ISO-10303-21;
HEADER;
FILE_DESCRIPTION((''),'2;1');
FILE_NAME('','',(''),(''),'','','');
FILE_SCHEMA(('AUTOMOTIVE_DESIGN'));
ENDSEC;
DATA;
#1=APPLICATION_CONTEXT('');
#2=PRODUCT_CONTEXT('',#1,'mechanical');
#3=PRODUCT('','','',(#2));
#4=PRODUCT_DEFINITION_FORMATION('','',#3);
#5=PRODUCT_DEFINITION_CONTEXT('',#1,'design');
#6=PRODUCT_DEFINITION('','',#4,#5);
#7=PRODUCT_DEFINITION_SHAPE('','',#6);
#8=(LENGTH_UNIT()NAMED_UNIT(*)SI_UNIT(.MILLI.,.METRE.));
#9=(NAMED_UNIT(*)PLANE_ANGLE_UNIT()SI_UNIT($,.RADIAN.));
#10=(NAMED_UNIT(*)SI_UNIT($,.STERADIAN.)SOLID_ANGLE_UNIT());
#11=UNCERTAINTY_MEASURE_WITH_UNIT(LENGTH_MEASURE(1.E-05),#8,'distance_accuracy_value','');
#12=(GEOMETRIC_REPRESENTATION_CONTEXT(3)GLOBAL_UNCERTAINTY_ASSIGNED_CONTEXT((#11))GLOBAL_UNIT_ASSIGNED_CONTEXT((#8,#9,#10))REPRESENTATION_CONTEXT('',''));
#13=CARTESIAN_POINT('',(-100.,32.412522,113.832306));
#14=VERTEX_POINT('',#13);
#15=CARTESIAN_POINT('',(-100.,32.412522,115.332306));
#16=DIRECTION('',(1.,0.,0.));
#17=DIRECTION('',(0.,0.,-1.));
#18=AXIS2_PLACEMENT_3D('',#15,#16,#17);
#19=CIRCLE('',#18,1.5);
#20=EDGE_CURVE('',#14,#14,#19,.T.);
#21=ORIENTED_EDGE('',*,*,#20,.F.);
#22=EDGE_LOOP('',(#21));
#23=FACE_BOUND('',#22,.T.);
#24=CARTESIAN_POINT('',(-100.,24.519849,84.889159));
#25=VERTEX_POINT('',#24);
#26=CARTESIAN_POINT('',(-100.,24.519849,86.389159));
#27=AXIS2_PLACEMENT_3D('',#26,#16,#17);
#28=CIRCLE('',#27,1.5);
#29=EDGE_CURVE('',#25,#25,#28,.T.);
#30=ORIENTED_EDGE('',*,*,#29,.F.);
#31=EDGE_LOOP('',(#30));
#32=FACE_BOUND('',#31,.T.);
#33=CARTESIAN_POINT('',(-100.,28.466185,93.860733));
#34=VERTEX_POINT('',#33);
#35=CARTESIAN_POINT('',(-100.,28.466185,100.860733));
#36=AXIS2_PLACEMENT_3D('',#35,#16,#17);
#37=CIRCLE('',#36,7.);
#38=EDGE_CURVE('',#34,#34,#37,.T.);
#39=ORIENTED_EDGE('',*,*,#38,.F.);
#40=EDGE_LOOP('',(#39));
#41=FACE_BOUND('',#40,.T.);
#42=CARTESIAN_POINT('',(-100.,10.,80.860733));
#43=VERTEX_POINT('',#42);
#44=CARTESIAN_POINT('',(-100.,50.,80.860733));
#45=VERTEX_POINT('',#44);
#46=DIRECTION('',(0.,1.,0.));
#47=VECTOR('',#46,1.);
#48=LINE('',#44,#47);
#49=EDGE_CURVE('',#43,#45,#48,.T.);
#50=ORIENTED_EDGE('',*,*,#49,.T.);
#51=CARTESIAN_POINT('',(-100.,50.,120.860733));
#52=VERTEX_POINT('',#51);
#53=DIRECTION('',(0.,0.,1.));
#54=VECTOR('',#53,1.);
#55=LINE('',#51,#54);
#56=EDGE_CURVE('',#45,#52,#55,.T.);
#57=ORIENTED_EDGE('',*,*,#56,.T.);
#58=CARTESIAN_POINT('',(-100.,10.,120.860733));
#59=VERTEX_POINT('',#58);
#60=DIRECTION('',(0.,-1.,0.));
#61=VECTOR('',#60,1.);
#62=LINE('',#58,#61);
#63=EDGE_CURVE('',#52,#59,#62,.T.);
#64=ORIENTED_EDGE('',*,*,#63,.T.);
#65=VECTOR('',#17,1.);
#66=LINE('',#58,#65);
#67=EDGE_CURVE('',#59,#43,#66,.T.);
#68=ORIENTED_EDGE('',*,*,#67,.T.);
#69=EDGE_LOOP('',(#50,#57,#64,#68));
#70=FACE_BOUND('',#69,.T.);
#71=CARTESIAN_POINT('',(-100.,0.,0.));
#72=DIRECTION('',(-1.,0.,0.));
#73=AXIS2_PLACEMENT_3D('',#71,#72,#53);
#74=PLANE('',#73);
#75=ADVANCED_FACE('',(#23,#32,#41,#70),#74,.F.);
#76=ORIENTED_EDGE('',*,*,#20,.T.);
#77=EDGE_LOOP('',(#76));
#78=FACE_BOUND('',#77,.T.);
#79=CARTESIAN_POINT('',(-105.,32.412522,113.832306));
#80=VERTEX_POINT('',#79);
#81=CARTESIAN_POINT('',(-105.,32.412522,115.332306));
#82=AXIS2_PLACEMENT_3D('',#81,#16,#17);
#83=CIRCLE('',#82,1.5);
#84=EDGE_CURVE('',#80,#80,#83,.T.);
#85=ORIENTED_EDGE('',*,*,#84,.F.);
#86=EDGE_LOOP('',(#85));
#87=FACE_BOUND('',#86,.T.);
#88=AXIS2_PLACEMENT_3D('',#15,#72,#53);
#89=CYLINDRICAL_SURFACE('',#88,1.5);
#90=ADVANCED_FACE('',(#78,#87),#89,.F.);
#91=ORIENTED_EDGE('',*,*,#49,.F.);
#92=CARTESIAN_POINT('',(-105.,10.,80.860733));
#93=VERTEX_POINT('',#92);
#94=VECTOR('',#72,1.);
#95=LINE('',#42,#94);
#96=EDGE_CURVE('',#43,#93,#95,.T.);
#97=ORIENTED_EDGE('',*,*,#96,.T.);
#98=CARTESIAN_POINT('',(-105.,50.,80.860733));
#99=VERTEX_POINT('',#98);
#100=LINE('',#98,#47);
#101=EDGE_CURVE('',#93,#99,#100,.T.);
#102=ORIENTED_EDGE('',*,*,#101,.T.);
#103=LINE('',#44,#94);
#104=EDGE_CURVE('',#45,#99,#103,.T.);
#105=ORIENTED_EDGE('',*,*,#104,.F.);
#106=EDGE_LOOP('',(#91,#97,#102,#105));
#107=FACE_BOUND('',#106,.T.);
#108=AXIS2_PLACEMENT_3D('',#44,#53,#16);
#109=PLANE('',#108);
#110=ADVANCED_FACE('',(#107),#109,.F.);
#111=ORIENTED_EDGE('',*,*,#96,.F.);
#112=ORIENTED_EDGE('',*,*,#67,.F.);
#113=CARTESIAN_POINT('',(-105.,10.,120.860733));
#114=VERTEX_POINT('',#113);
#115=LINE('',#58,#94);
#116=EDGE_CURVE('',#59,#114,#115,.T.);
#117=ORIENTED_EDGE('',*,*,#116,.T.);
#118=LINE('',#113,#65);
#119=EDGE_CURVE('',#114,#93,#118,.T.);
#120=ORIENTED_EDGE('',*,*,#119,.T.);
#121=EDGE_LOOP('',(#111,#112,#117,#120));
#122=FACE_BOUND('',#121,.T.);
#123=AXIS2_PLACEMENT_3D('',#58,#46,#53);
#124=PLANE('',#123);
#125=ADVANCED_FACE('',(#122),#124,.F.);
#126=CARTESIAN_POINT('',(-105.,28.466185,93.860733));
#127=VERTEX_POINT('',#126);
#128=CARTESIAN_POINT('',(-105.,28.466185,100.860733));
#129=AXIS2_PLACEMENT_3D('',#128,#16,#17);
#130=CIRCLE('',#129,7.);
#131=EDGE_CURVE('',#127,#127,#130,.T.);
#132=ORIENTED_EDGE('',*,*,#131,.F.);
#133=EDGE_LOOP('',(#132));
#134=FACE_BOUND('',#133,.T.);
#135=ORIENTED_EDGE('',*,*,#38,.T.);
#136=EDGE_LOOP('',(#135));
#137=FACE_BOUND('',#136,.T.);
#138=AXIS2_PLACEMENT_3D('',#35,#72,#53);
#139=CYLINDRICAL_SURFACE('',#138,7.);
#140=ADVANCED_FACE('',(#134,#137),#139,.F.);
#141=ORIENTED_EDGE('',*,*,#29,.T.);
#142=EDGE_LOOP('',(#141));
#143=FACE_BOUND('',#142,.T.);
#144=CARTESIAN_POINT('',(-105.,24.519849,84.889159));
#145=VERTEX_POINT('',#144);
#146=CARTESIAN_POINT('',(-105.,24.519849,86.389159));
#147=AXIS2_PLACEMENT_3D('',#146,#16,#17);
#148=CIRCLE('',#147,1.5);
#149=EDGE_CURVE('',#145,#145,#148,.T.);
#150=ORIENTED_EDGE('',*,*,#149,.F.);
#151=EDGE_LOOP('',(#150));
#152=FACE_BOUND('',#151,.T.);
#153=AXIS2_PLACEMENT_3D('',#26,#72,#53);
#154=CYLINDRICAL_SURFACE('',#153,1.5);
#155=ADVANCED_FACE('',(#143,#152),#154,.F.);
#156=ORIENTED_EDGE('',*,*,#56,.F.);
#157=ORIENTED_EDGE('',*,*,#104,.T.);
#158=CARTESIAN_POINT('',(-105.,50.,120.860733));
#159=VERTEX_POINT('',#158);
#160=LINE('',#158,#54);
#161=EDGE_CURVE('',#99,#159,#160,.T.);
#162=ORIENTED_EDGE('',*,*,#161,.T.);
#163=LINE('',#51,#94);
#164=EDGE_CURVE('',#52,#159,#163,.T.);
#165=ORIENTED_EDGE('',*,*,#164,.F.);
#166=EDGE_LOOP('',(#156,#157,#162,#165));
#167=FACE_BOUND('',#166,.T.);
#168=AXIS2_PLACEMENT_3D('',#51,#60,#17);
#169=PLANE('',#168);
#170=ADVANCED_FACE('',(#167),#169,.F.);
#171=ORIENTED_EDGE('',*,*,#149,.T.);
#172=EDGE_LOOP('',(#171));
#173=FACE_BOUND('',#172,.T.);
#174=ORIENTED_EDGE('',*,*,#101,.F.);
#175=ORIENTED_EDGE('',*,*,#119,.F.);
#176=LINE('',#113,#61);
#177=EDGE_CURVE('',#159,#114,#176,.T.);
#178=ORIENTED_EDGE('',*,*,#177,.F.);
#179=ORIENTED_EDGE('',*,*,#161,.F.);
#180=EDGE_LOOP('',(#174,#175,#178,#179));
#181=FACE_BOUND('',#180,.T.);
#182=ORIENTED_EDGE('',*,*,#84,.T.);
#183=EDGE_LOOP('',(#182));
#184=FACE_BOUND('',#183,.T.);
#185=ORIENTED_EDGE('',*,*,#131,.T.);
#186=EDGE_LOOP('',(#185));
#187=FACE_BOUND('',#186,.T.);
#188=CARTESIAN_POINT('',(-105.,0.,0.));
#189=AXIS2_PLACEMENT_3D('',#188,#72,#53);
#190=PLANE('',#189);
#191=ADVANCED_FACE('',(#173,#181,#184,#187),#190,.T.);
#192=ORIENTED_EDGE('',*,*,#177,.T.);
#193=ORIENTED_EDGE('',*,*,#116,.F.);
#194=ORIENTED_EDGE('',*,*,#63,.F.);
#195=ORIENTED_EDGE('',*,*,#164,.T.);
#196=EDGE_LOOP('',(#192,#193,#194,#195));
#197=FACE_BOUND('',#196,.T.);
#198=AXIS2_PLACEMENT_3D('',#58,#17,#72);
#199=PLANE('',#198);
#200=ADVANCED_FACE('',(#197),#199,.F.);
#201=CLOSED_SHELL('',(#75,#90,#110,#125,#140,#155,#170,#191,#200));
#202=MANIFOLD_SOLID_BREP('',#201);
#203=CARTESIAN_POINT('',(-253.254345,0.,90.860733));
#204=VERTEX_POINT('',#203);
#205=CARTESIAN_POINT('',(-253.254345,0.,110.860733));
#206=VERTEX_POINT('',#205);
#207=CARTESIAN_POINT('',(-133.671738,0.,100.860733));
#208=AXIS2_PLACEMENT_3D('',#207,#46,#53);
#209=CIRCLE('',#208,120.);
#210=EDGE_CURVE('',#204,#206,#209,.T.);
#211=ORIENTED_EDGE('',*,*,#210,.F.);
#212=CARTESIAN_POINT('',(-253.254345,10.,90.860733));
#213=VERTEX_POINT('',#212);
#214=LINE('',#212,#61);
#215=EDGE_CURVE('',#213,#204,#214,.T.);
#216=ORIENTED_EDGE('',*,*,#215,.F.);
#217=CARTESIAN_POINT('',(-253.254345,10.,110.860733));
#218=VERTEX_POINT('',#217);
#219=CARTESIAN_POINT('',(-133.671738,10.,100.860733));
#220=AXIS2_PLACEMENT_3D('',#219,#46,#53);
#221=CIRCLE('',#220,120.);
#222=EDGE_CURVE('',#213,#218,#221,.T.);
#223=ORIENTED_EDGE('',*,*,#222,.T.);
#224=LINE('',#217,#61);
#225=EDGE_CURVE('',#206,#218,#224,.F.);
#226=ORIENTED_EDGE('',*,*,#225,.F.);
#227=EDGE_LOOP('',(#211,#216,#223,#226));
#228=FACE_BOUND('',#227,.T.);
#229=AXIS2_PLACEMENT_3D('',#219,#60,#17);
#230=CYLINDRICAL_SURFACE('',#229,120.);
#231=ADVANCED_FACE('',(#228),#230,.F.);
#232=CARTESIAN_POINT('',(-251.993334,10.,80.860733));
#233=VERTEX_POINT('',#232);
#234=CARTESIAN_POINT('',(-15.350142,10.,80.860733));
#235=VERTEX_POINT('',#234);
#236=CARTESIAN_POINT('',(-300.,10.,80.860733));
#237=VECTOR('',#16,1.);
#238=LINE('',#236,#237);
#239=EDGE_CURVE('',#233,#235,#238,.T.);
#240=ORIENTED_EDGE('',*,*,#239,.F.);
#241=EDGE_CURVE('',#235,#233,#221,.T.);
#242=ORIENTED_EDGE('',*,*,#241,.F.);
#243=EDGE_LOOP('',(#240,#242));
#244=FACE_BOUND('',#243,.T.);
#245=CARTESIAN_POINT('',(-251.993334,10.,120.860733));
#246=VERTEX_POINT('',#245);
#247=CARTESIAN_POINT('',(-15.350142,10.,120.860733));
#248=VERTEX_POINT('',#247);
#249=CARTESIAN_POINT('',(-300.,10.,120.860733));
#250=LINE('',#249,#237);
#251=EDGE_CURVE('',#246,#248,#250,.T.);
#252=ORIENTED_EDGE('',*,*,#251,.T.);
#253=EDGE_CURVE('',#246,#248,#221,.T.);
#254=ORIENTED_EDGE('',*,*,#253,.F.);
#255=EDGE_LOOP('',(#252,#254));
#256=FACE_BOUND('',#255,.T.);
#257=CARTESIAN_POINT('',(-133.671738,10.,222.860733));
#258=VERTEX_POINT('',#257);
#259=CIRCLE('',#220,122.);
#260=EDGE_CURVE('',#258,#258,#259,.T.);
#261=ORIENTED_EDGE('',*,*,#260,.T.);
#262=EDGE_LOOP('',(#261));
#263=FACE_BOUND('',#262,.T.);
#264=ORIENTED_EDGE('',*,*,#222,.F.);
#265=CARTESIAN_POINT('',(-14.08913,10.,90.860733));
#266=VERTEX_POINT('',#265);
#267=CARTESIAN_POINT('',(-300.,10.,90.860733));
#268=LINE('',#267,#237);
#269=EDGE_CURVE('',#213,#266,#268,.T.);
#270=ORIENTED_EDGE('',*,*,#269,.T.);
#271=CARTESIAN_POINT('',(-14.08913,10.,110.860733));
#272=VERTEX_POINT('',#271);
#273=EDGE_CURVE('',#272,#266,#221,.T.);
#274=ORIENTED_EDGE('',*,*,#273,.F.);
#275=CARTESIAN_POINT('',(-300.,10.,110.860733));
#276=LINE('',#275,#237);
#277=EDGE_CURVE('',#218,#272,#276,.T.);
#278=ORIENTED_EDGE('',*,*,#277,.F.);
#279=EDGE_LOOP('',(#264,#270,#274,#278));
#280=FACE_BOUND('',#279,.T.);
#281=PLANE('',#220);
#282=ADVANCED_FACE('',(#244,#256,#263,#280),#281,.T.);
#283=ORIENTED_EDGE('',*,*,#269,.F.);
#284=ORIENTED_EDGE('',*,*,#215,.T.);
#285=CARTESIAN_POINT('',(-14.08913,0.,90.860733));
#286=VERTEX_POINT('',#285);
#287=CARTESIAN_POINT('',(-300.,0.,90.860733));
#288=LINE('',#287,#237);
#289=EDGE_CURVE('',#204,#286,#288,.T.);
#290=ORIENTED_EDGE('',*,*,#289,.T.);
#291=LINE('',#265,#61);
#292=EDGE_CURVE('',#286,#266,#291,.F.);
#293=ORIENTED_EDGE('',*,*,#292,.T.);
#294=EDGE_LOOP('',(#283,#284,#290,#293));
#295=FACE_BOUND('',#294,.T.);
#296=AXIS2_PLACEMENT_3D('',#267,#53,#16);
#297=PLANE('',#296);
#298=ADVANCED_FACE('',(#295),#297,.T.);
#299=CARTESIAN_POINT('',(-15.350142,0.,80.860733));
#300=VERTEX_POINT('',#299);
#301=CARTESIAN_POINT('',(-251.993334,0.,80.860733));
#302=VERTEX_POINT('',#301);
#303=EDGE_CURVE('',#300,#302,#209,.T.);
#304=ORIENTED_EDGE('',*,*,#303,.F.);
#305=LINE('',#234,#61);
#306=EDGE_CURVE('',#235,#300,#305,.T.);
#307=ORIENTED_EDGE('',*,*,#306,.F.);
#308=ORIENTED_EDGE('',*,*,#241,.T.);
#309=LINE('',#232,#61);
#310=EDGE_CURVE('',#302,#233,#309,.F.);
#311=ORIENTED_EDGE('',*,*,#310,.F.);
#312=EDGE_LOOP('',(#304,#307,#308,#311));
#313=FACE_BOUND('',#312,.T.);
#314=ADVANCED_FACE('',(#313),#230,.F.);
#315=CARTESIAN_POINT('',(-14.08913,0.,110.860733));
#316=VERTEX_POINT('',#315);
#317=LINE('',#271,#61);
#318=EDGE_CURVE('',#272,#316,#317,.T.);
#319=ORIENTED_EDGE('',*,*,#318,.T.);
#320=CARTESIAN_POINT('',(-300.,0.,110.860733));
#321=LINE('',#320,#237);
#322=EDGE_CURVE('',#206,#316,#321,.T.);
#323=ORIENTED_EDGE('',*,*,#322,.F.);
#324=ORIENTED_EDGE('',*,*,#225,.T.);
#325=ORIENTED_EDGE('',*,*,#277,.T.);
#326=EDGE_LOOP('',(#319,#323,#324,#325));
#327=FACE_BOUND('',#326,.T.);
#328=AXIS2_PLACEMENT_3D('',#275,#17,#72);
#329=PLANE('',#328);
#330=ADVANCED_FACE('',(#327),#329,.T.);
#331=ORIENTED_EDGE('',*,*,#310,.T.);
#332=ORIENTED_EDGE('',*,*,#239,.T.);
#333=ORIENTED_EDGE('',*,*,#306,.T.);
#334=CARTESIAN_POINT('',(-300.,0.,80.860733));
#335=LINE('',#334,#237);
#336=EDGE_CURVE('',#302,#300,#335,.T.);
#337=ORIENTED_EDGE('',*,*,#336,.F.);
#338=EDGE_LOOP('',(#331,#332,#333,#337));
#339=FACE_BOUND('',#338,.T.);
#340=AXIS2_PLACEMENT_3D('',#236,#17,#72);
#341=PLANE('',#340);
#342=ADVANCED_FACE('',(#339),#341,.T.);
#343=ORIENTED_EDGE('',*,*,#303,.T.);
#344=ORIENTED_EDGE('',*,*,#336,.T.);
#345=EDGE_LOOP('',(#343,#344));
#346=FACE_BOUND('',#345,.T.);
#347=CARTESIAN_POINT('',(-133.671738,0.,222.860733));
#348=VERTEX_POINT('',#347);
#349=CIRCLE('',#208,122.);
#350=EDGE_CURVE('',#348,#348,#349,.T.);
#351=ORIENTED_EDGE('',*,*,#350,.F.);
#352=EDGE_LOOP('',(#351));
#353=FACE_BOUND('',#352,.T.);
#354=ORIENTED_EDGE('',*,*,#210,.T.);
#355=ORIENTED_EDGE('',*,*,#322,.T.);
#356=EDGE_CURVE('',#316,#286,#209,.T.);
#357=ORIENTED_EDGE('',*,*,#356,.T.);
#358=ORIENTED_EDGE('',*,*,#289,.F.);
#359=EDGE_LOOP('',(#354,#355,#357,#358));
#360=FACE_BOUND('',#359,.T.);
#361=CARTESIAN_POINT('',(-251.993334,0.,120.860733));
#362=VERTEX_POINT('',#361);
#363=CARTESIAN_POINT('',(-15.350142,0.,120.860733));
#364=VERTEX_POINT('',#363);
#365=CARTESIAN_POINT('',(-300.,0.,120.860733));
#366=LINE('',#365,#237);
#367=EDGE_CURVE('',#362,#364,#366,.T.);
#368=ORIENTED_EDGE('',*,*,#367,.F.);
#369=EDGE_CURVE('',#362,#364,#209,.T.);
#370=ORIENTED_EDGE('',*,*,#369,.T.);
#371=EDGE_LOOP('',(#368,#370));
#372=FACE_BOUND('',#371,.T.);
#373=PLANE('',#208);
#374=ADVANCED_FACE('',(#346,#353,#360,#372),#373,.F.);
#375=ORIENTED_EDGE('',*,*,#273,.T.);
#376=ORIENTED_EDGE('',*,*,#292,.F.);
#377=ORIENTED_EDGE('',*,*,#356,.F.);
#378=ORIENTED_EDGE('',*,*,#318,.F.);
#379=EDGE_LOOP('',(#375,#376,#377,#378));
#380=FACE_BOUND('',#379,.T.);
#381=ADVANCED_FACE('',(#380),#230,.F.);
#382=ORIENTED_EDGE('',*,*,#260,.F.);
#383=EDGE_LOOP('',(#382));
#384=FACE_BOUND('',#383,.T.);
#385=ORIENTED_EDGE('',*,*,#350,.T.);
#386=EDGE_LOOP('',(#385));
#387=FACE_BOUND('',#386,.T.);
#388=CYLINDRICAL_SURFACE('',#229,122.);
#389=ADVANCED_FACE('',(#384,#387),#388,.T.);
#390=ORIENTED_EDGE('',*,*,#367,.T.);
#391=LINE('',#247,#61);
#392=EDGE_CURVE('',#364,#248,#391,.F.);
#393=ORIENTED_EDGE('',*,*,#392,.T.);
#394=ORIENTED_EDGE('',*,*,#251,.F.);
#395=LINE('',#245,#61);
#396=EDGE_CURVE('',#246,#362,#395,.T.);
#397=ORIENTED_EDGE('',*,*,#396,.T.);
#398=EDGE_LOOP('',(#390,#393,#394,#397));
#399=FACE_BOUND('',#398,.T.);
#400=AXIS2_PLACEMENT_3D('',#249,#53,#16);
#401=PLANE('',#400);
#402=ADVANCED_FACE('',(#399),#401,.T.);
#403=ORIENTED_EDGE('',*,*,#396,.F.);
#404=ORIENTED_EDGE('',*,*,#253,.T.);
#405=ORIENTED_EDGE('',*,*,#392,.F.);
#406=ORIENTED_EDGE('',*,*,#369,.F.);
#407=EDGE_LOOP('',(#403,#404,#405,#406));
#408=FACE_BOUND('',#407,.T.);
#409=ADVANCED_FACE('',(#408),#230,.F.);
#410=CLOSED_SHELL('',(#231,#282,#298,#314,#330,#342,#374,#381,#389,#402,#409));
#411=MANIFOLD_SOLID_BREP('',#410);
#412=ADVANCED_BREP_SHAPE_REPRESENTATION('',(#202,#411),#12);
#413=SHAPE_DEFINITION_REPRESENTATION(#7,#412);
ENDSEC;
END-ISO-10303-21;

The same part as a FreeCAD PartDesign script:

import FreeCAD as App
import Part
import Sketcher

V = App.Vector


def add_polygon(sketch, points):
    """Adds a closed chain of lines whose ends are joined by coincident constraints."""
    first, n = sketch.GeometryCount, len(points)
    for a, b in zip(points, points[1:] + points[:1]):
        sketch.addGeometry(Part.LineSegment(App.Vector(*a, 0), App.Vector(*b, 0)), False)
    for i in range(n):
        sketch.addConstraint(Sketcher.Constraint("Coincident", first + i, 2, first + (i + 1) % n, 1))

doc = App.newDocument("Part")
body = doc.addObject("PartDesign::Body", "Body")

# Sketch on XZ plane
sketch1 = body.newObject("Sketcher::SketchObject", "Sketch")
sketch1.AttachmentSupport = (doc.getObject("XZ_Plane"), [""])
sketch1.MapMode = "FlatFace"
sketch1.addGeometry([
    Part.Circle(V(-133.671738, 100.860733, 0), V(0, 0, 1), 122),
    Part.Circle(V(-133.671738, 100.860733, 0), V(0, 0, 1), 120),
], False)
sketch1.addConstraint([
    Sketcher.Constraint("Coincident", 1, 3, 0, 3),
    Sketcher.Constraint("Diameter", 0, 244.0),
    Sketcher.Constraint("Diameter", 1, 240.0),
    Sketcher.Constraint("DistanceX", 0, 3, -1, 1, 133.671738),
    Sketcher.Constraint("DistanceY", -1, 1, 0, 3, 100.860733),
])
pad1 = body.newObject("PartDesign::Pad", "Pad")
pad1.Profile = sketch1
pad1.Length = 10
pad1.Reversed = True

# Sketch on YZ plane
sketch2 = body.newObject("Sketcher::SketchObject", "Sketch001")
sketch2.AttachmentSupport = (doc.getObject("YZ_Plane"), [""])
sketch2.MapMode = "FlatFace"
add_polygon(sketch2, [(10, 120.860733), (0, 120.860733), (0, 110.860733), (10, 110.860733)])  # lines 0-3
add_polygon(sketch2, [(10, 90.860733), (0, 90.860733), (0, 80.860733), (10, 80.860733)])  # lines 4-7
sketch2.addConstraint([
    Sketcher.Constraint("Horizontal", 0),
    Sketcher.Constraint("Vertical", 1),
    Sketcher.Constraint("Horizontal", 2),
    Sketcher.Constraint("Vertical", 3),
    Sketcher.Constraint("Horizontal", 4),
    Sketcher.Constraint("Vertical", 5),
    Sketcher.Constraint("Horizontal", 6),
    Sketcher.Constraint("Vertical", 7),
    Sketcher.Constraint("PointOnObject", 0, 2, -2),
    Sketcher.Constraint("PointOnObject", 4, 2, -2),
    Sketcher.Constraint("Vertical", 3, 2, 6, 2),
    Sketcher.Constraint("Equal", 6, 1),
    Sketcher.Constraint("Equal", 3, 5),
    Sketcher.Constraint("DistanceX", 0, 2, 0, 1, 10.0),
    Sketcher.Constraint("DistanceY", 4, 2, 1, 2, 20.0),
    Sketcher.Constraint("DistanceY", -1, 1, 0, 2, 120.860733),
])
pad2 = body.newObject("PartDesign::Pad", "Pad001")
pad2.Profile = sketch2
pad2.Length = 300
pad2.Reversed = True

# Sketch on XZ plane
sketch3 = body.newObject("Sketcher::SketchObject", "Sketch002")
sketch3.AttachmentSupport = (doc.getObject("XZ_Plane"), [""])
sketch3.MapMode = "FlatFace"
add_polygon(sketch3, [(-339.683, -60.822), (-339.683, 262.544), (39.683, 262.544), (39.683, -60.822)])  # lines 0-3
sketch3.addGeometry(Part.Circle(V(-133.671738, 100.860733, 0), V(0, 0, 1), 122), False)  # 4
sketch3.addConstraint([
    Sketcher.Constraint("Vertical", 0),
    Sketcher.Constraint("Horizontal", 1),
    Sketcher.Constraint("Vertical", 2),
    Sketcher.Constraint("Horizontal", 3),
    Sketcher.Constraint("Diameter", 4, 244.0),
    Sketcher.Constraint("DistanceX", 1, 1, 1, 2, 379.366),
    Sketcher.Constraint("DistanceY", 0, 1, 0, 2, 323.366),
    Sketcher.Constraint("DistanceX", 0, 2, -1, 1, 339.683),
    Sketcher.Constraint("DistanceY", -1, 1, 0, 2, 262.544),
    Sketcher.Constraint("DistanceX", 4, 3, -1, 1, 133.671738),
    Sketcher.Constraint("DistanceY", -1, 1, 4, 3, 100.860733),
])
pocket1 = body.newObject("PartDesign::Pocket", "Pocket")
pocket1.Profile = sketch3
pocket1.Type = "ThroughAll"
pocket1.Midplane = True
body2 = doc.addObject("PartDesign::Body", "Body001")

# Sketch on YZ plane
sketch4 = body2.newObject("Sketcher::SketchObject", "Sketch003")
sketch4.AttachmentSupport = (doc.getObject("YZ_Plane001"), [""])
sketch4.MapMode = "FlatFace"
sketch4.AttachmentOffset = App.Placement(V(0, 0, -105), App.Rotation())
add_polygon(sketch4, [(50, 120.860733), (10, 120.860733), (10, 80.860733), (50, 80.860733)])  # lines 0-3
sketch4.addGeometry(Part.Circle(V(24.519849, 86.389159, 0), V(0, 0, 1), 1.5), False)  # 4
sketch4.addGeometry(Part.Circle(V(32.412522, 115.332306, 0), V(0, 0, 1), 1.5), False)  # 5
sketch4.addGeometry(Part.Circle(V(28.466185, 100.860733, 0), V(0, 0, 1), 7), False)  # 6
sketch4.addConstraint([
    Sketcher.Constraint("Horizontal", 0),
    Sketcher.Constraint("Vertical", 1),
    Sketcher.Constraint("Horizontal", 2),
    Sketcher.Constraint("Vertical", 3),
    Sketcher.Constraint("Equal", 4, 5),
    Sketcher.Constraint("Equal", 2, 1),
    Sketcher.Constraint("Diameter", 4, 3.0),
    Sketcher.Constraint("Diameter", 6, 14.0),
    Sketcher.Constraint("DistanceX", 0, 2, 0, 1, 40.0),
    Sketcher.Constraint("DistanceX", -1, 1, 0, 2, 10.0),
    Sketcher.Constraint("DistanceY", 6, 3, 0, 2, 20.0),
    Sketcher.Constraint("DistanceX", -1, 1, 4, 3, 24.519849),
    Sketcher.Constraint("DistanceY", -1, 1, 4, 3, 86.389159),
    Sketcher.Constraint("DistanceX", -1, 1, 5, 3, 32.412522),
    Sketcher.Constraint("DistanceY", -1, 1, 5, 3, 115.332306),
    Sketcher.Constraint("DistanceX", -1, 1, 6, 3, 28.466185),
    Sketcher.Constraint("DistanceY", -1, 1, 6, 3, 100.860733),
])
pad3 = body2.newObject("PartDesign::Pad", "Pad002")
pad3.Profile = sketch4
pad3.Length = 5

doc.recompute()
